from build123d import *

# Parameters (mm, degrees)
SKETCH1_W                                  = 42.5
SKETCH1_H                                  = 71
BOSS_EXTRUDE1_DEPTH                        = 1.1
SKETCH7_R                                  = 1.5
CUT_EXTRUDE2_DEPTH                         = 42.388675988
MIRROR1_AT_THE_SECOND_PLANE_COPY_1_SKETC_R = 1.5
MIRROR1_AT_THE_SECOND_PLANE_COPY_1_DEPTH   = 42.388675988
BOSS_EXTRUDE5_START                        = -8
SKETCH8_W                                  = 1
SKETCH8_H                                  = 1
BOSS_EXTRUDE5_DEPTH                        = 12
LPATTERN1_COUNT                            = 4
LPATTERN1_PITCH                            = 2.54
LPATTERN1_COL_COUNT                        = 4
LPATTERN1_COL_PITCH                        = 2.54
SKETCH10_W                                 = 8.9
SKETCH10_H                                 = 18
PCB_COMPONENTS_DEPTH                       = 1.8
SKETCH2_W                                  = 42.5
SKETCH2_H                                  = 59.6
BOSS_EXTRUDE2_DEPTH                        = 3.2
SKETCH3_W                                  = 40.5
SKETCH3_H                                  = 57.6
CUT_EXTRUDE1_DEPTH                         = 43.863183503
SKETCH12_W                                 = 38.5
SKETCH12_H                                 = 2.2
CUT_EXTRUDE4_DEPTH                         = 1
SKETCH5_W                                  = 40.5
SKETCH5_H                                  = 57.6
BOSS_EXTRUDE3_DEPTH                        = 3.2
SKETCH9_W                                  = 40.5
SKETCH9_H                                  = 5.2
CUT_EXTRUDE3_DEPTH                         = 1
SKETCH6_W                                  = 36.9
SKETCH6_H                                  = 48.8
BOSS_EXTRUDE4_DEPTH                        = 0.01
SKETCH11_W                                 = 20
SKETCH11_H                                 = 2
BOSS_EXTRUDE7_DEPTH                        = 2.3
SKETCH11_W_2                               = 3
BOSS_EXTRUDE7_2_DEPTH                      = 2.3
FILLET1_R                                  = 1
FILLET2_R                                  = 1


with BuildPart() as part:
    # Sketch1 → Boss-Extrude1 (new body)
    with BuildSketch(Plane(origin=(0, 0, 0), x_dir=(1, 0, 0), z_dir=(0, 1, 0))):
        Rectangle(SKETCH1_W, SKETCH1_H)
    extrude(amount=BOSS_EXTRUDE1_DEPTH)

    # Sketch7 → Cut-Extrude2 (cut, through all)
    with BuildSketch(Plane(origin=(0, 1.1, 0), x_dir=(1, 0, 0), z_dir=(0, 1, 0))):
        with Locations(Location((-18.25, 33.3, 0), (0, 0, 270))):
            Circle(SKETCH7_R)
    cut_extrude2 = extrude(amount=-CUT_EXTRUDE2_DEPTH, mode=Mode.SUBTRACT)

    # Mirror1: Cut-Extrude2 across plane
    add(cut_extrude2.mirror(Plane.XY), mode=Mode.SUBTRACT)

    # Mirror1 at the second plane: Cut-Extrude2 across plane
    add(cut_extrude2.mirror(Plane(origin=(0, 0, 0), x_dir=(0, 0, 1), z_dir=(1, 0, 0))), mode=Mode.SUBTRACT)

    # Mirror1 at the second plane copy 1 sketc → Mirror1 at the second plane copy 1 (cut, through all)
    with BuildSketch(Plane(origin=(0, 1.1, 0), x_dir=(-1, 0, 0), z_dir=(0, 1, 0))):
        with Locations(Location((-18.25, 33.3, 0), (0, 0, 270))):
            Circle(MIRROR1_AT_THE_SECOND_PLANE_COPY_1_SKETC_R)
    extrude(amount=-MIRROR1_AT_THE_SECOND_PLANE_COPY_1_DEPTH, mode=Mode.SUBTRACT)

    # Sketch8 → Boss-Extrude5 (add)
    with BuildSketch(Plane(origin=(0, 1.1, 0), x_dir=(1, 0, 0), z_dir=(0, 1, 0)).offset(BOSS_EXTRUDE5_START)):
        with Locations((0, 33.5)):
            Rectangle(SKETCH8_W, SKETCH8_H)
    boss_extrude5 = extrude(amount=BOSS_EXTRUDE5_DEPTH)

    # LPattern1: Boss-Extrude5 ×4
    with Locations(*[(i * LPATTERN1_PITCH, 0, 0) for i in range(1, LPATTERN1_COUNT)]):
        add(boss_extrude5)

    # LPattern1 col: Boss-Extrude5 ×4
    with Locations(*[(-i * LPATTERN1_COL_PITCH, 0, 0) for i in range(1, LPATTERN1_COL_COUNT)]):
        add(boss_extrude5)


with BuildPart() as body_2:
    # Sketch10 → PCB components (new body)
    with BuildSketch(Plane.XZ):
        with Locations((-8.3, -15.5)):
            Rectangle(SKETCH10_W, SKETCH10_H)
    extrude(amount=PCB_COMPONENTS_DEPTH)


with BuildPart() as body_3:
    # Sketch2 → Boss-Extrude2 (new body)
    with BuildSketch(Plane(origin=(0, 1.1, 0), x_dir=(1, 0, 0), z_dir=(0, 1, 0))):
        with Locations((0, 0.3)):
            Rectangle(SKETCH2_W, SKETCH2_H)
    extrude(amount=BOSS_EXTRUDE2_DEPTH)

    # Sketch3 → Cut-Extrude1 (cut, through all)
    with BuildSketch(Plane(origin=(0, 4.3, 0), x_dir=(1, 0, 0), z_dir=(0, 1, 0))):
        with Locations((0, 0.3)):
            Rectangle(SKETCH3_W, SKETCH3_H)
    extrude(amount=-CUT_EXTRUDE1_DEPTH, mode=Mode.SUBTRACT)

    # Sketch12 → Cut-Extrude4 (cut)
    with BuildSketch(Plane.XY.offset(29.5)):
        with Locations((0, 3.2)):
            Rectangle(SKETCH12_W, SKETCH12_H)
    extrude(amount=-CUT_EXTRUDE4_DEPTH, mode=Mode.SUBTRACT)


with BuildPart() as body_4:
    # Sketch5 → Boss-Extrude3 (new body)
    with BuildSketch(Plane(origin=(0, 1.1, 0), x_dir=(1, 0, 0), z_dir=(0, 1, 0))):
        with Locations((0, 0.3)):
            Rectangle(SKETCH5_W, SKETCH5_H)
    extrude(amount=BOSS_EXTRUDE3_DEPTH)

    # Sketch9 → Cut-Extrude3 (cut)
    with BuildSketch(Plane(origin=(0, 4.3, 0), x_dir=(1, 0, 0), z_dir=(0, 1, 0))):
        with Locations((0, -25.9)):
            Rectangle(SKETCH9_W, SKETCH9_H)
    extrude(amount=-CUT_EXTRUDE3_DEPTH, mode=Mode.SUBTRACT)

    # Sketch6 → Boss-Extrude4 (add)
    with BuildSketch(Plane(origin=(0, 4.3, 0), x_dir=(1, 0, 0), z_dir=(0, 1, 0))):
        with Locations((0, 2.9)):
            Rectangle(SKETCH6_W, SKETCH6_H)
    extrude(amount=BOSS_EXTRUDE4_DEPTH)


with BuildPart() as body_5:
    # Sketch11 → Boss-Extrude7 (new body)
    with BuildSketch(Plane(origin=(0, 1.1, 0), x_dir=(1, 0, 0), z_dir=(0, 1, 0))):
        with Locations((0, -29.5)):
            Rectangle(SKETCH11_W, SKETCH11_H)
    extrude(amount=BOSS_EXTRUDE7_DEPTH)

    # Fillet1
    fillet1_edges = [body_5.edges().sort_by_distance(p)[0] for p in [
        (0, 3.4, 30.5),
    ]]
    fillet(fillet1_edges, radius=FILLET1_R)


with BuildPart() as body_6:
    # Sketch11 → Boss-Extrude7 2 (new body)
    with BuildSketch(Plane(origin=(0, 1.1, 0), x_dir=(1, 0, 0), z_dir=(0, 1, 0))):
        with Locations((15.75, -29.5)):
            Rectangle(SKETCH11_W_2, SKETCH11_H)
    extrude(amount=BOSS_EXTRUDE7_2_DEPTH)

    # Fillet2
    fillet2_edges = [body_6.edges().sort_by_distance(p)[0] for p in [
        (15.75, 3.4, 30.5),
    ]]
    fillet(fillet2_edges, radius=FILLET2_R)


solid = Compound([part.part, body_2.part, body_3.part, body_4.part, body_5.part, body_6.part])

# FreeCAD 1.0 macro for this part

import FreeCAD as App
import Part
import Sketcher


def edges_at(feature, points):
    """Names of the edges that pass closest to the given points."""
    edges = feature.Shape.Edges
    near = lambda p: min(range(len(edges)), key=lambda i: edges[i].distToShape(Part.Vertex(*p))[0])
    return sorted({f"Edge{near(p) + 1}" for p in points})

doc = App.newDocument("Part")
body = doc.addObject("PartDesign::Body", "Body")

# Sketch on XZ plane
sketch1 = body.newObject("Sketcher::SketchObject", "Sketch")
sketch1.AttachmentSupport = (doc.getObject("XZ_Plane"), [""])
sketch1.MapMode = "FlatFace"
sketch1.addGeometry([
    Part.LineSegment(App.Vector(-21, -36, 0), App.Vector(-21, 36, 0)),
    Part.LineSegment(App.Vector(-21, 36, 0), App.Vector(21, 36, 0)),
    Part.LineSegment(App.Vector(21, 36, 0), App.Vector(21, -36, 0)),
    Part.LineSegment(App.Vector(21, -36, 0), App.Vector(-21, -36, 0)),
], False)
sketch1.addConstraint([
    Sketcher.Constraint("Coincident", 0, 2, 1, 1),
    Sketcher.Constraint("Coincident", 1, 2, 2, 1),
    Sketcher.Constraint("Coincident", 2, 2, 3, 1),
    Sketcher.Constraint("Coincident", 3, 2, 0, 1),
    Sketcher.Constraint("Vertical", 0),
    Sketcher.Constraint("Horizontal", 1),
    Sketcher.Constraint("Vertical", 2),
    Sketcher.Constraint("Horizontal", 3),
    Sketcher.Constraint("Symmetric", 0, 2, 2, 2, -1, 1),
    Sketcher.Constraint("DistanceY", 0, 1, 0, 2, 71.0),
    Sketcher.Constraint("DistanceX", 1, 1, 1, 2, 42.5),
])
pad1 = body.newObject("PartDesign::Pad", "Pad")
pad1.Profile = sketch1
pad1.Length = 1.1
pad1.Reversed = True

# Sketch on XZ plane
sketch2 = body.newObject("Sketcher::SketchObject", "Sketch001")
sketch2.AttachmentSupport = (doc.getObject("XZ_Plane"), [""])
sketch2.MapMode = "FlatFace"
sketch2.AttachmentOffset = App.Placement(App.Vector(0, 0, -1.1), App.Rotation())
sketch2.addGeometry(Part.Circle(App.Vector(-18.2, -33.3, 0), App.Vector(0, 0, 1), 1.5), False)
sketch2.addConstraint([
    Sketcher.Constraint("Diameter", 0, 3.0),
    Sketcher.Constraint("DistanceY", 0, 3, -1, 1, 33.3),
    Sketcher.Constraint("DistanceX", 0, 3, -1, 1, 18.25),
])
pocket1 = body.newObject("PartDesign::Pocket", "Pocket")
pocket1.Profile = sketch2
pocket1.Type = "ThroughAll"
pocket1.Reversed = True
doc.recompute()

mirrored = body.newObject("PartDesign::Mirrored", "Mirrored")
mirrored.Originals = [pocket1]
mirrored.MirrorPlane = (doc.getObject("XY_Plane"), [""])
body.Tip = mirrored
doc.recompute()

mirrored2 = body.newObject("PartDesign::Mirrored", "Mirrored001")
mirrored2.Originals = [pocket1]
mirrored2.MirrorPlane = (doc.getObject("YZ_Plane"), [""])
body.Tip = mirrored2

# Sketch on XZ plane
sketch3 = body.newObject("Sketcher::SketchObject", "Sketch002")
sketch3.AttachmentSupport = (doc.getObject("XZ_Plane"), [""])
sketch3.MapMode = "FlatFace"
sketch3.AttachmentOffset = App.Placement(App.Vector(0, 0, -1.1), App.Rotation())
sketch3.addGeometry(Part.Circle(App.Vector(18.2, 33.3, 0), App.Vector(0, 0, 1), 1.5), False)
sketch3.addConstraint([
    Sketcher.Constraint("Diameter", 0, 3.0),
    Sketcher.Constraint("DistanceY", -1, 1, 0, 3, 33.3),
    Sketcher.Constraint("DistanceX", -1, 1, 0, 3, 18.25),
])
pocket2 = body.newObject("PartDesign::Pocket", "Pocket001")
pocket2.Profile = sketch3
pocket2.Type = "ThroughAll"
pocket2.Reversed = True

# Sketch on XZ plane
sketch4 = body.newObject("Sketcher::SketchObject", "Sketch003")
sketch4.AttachmentSupport = (doc.getObject("XZ_Plane"), [""])
sketch4.MapMode = "FlatFace"
sketch4.AttachmentOffset = App.Placement(App.Vector(0, 0, 6.9), App.Rotation())
sketch4.addGeometry([
    Part.LineSegment(App.Vector(-0.5, -34, 0), App.Vector(-0.5, -33, 0)),
    Part.LineSegment(App.Vector(-0.5, -33, 0), App.Vector(0.5, -33, 0)),
    Part.LineSegment(App.Vector(0.5, -33, 0), App.Vector(0.5, -34, 0)),
    Part.LineSegment(App.Vector(0.5, -34, 0), App.Vector(-0.5, -34, 0)),
], False)
sketch4.addConstraint([
    Sketcher.Constraint("Coincident", 0, 2, 1, 1),
    Sketcher.Constraint("Coincident", 1, 2, 2, 1),
    Sketcher.Constraint("Coincident", 2, 2, 3, 1),
    Sketcher.Constraint("Coincident", 3, 2, 0, 1),
    Sketcher.Constraint("Vertical", 0),
    Sketcher.Constraint("Horizontal", 1),
    Sketcher.Constraint("Vertical", 2),
    Sketcher.Constraint("Horizontal", 3),
    Sketcher.Constraint("Equal", 3, 0),
    Sketcher.Constraint("DistanceX", 1, 1, 1, 2, 1.0),
    Sketcher.Constraint("DistanceY", 0, 2, -1, 1, 33.0),
    Sketcher.Constraint("DistanceX", 0, 2, -1, 1, 0.5),
])
pad2 = body.newObject("PartDesign::Pad", "Pad001")
pad2.Profile = sketch4
pad2.Length = 12
pad2.Reversed = True
doc.recompute()

linearpattern = body.newObject("PartDesign::LinearPattern", "LinearPattern")
linearpattern.Originals = [pad2]
linearpattern.Direction = (doc.getObject("X_Axis"), [""])
linearpattern.Mode = "offset"
linearpattern.Offset = 2.54
linearpattern.Occurrences = 4
body.Tip = linearpattern
doc.recompute()

linearpattern2 = body.newObject("PartDesign::LinearPattern", "LinearPattern001")
linearpattern2.Originals = [pad2]
linearpattern2.Direction = (doc.getObject("X_Axis"), [""])
linearpattern2.Mode = "offset"
linearpattern2.Offset = 2.54
linearpattern2.Occurrences = 4
linearpattern2.Reversed = True
body.Tip = linearpattern2
body2 = doc.addObject("PartDesign::Body", "Body001")

# Sketch on XZ plane
sketch5 = body2.newObject("Sketcher::SketchObject", "Sketch004")
sketch5.AttachmentSupport = (doc.getObject("XZ_Plane001"), [""])
sketch5.MapMode = "FlatFace"
sketch5.addGeometry([
    Part.LineSegment(App.Vector(-13, -6, 0), App.Vector(-13, -24, 0)),
    Part.LineSegment(App.Vector(-13, -24, 0), App.Vector(-4, -24, 0)),
    Part.LineSegment(App.Vector(-4, -24, 0), App.Vector(-4, -6, 0)),
    Part.LineSegment(App.Vector(-4, -6, 0), App.Vector(-13, -6, 0)),
], False)
sketch5.addConstraint([
    Sketcher.Constraint("Coincident", 0, 2, 1, 1),
    Sketcher.Constraint("Coincident", 1, 2, 2, 1),
    Sketcher.Constraint("Coincident", 2, 2, 3, 1),
    Sketcher.Constraint("Coincident", 3, 2, 0, 1),
    Sketcher.Constraint("Vertical", 0),
    Sketcher.Constraint("Horizontal", 1),
    Sketcher.Constraint("Vertical", 2),
    Sketcher.Constraint("Horizontal", 3),
    Sketcher.Constraint("DistanceY", 0, 2, 0, 1, 18.0),
    Sketcher.Constraint("DistanceX", 1, 1, 1, 2, 8.9),
    Sketcher.Constraint("DistanceY", 0, 2, -1, 1, 24.5),
    Sketcher.Constraint("DistanceX", 0, 2, -1, 1, 12.75),
])
pad3 = body2.newObject("PartDesign::Pad", "Pad002")
pad3.Profile = sketch5
pad3.Length = 1.8
body3 = doc.addObject("PartDesign::Body", "Body002")

# Sketch on XZ plane
sketch6 = body3.newObject("Sketcher::SketchObject", "Sketch005")
sketch6.AttachmentSupport = (doc.getObject("XZ_Plane002"), [""])
sketch6.MapMode = "FlatFace"
sketch6.AttachmentOffset = App.Placement(App.Vector(0, 0, -1.1), App.Rotation())
sketch6.addGeometry([
    Part.LineSegment(App.Vector(-21, -30, 0), App.Vector(-21, 30, 0)),
    Part.LineSegment(App.Vector(-21, 30, 0), App.Vector(21, 30, 0)),
    Part.LineSegment(App.Vector(21, 30, 0), App.Vector(21, -30, 0)),
    Part.LineSegment(App.Vector(21, -30, 0), App.Vector(-21, -30, 0)),
], False)
sketch6.addConstraint([
    Sketcher.Constraint("Coincident", 0, 2, 1, 1),
    Sketcher.Constraint("Coincident", 1, 2, 2, 1),
    Sketcher.Constraint("Coincident", 2, 2, 3, 1),
    Sketcher.Constraint("Coincident", 3, 2, 0, 1),
    Sketcher.Constraint("Vertical", 0),
    Sketcher.Constraint("Horizontal", 1),
    Sketcher.Constraint("Vertical", 2),
    Sketcher.Constraint("Horizontal", 3),
    Sketcher.Constraint("DistanceX", 1, 1, 1, 2, 42.5),
    Sketcher.Constraint("DistanceY", 0, 1, 0, 2, 59.6),
    Sketcher.Constraint("DistanceY", -1, 1, 0, 2, 29.5),
    Sketcher.Constraint("DistanceX", 0, 2, -1, 1, 21.25),
])
pad4 = body3.newObject("PartDesign::Pad", "Pad003")
pad4.Profile = sketch6
pad4.Length = 3.2
pad4.Reversed = True

# Sketch on XZ plane
sketch7 = body3.newObject("Sketcher::SketchObject", "Sketch006")
sketch7.AttachmentSupport = (doc.getObject("XZ_Plane002"), [""])
sketch7.MapMode = "FlatFace"
sketch7.AttachmentOffset = App.Placement(App.Vector(0, 0, -4.3), App.Rotation())
sketch7.addGeometry([
    Part.LineSegment(App.Vector(-20, -29, 0), App.Vector(-20, 28, 0)),
    Part.LineSegment(App.Vector(-20, 28, 0), App.Vector(20, 28, 0)),
    Part.LineSegment(App.Vector(20, 28, 0), App.Vector(20, -29, 0)),
    Part.LineSegment(App.Vector(20, -29, 0), App.Vector(-20, -29, 0)),
], False)
sketch7.addConstraint([
    Sketcher.Constraint("Coincident", 0, 2, 1, 1),
    Sketcher.Constraint("Coincident", 1, 2, 2, 1),
    Sketcher.Constraint("Coincident", 2, 2, 3, 1),
    Sketcher.Constraint("Coincident", 3, 2, 0, 1),
    Sketcher.Constraint("Vertical", 0),
    Sketcher.Constraint("Horizontal", 1),
    Sketcher.Constraint("Vertical", 2),
    Sketcher.Constraint("Horizontal", 3),
    Sketcher.Constraint("DistanceX", 1, 1, 1, 2, 40.5),
    Sketcher.Constraint("DistanceY", 0, 1, 0, 2, 57.6),
    Sketcher.Constraint("DistanceY", -1, 1, 0, 2, 28.5),
    Sketcher.Constraint("DistanceX", 0, 2, -1, 1, 20.25),
])
pocket3 = body3.newObject("PartDesign::Pocket", "Pocket002")
pocket3.Profile = sketch7
pocket3.Type = "ThroughAll"
pocket3.Reversed = True

# Sketch on XY plane
sketch8 = body3.newObject("Sketcher::SketchObject", "Sketch007")
sketch8.AttachmentSupport = (doc.getObject("XY_Plane002"), [""])
sketch8.MapMode = "FlatFace"
sketch8.AttachmentOffset = App.Placement(App.Vector(0, 0, 29.5), App.Rotation())
sketch8.addGeometry([
    Part.LineSegment(App.Vector(-19.2, 4.3, 0), App.Vector(-19.2, 2.1, 0)),
    Part.LineSegment(App.Vector(-19.2, 2.1, 0), App.Vector(19.2, 2.1, 0)),
    Part.LineSegment(App.Vector(19.2, 2.1, 0), App.Vector(19.2, 4.3, 0)),
    Part.LineSegment(App.Vector(19.2, 4.3, 0), App.Vector(-19.2, 4.3, 0)),
], False)
sketch8.addConstraint([
    Sketcher.Constraint("Coincident", 0, 2, 1, 1),
    Sketcher.Constraint("Coincident", 1, 2, 2, 1),
    Sketcher.Constraint("Coincident", 2, 2, 3, 1),
    Sketcher.Constraint("Coincident", 3, 2, 0, 1),
    Sketcher.Constraint("Vertical", 0),
    Sketcher.Constraint("Horizontal", 1),
    Sketcher.Constraint("Vertical", 2),
    Sketcher.Constraint("Horizontal", 3),
    Sketcher.Constraint("DistanceX", 1, 1, 1, 2, 38.5),
    Sketcher.Constraint("DistanceY", 0, 2, 0, 1, 2.2),
    Sketcher.Constraint("DistanceY", -1, 1, 0, 2, 2.1),
    Sketcher.Constraint("DistanceX", 0, 2, -1, 1, 19.25),
])
pocket4 = body3.newObject("PartDesign::Pocket", "Pocket003")
pocket4.Profile = sketch8
pocket4.Length = 1
body4 = doc.addObject("PartDesign::Body", "Body003")

# Sketch on XZ plane
sketch9 = body4.newObject("Sketcher::SketchObject", "Sketch008")
sketch9.AttachmentSupport = (doc.getObject("XZ_Plane003"), [""])
sketch9.MapMode = "FlatFace"
sketch9.AttachmentOffset = App.Placement(App.Vector(0, 0, -1.1), App.Rotation())
sketch9.addGeometry([
    Part.LineSegment(App.Vector(-20, -29, 0), App.Vector(-20, 28, 0)),
    Part.LineSegment(App.Vector(-20, 28, 0), App.Vector(20, 28, 0)),
    Part.LineSegment(App.Vector(20, 28, 0), App.Vector(20, -29, 0)),
    Part.LineSegment(App.Vector(20, -29, 0), App.Vector(-20, -29, 0)),
], False)
sketch9.addConstraint([
    Sketcher.Constraint("Coincident", 0, 2, 1, 1),
    Sketcher.Constraint("Coincident", 1, 2, 2, 1),
    Sketcher.Constraint("Coincident", 2, 2, 3, 1),
    Sketcher.Constraint("Coincident", 3, 2, 0, 1),
    Sketcher.Constraint("Vertical", 0),
    Sketcher.Constraint("Horizontal", 1),
    Sketcher.Constraint("Vertical", 2),
    Sketcher.Constraint("Horizontal", 3),
    Sketcher.Constraint("DistanceX", 1, 1, 1, 2, 40.5),
    Sketcher.Constraint("DistanceY", 0, 1, 0, 2, 57.6),
    Sketcher.Constraint("DistanceY", -1, 1, 0, 2, 28.5),
    Sketcher.Constraint("DistanceX", 0, 2, -1, 1, 20.25),
])
pad5 = body4.newObject("PartDesign::Pad", "Pad004")
pad5.Profile = sketch9
pad5.Length = 3.2
pad5.Reversed = True

# Sketch on XZ plane
sketch10 = body4.newObject("Sketcher::SketchObject", "Sketch009")
sketch10.AttachmentSupport = (doc.getObject("XZ_Plane003"), [""])
sketch10.MapMode = "FlatFace"
sketch10.AttachmentOffset = App.Placement(App.Vector(0, 0, -4.3), App.Rotation())
sketch10.addGeometry([
    Part.LineSegment(App.Vector(-20, 23, 0), App.Vector(-20, 28, 0)),
    Part.LineSegment(App.Vector(-20, 28, 0), App.Vector(20, 28, 0)),
    Part.LineSegment(App.Vector(20, 28, 0), App.Vector(20, 23, 0)),
    Part.LineSegment(App.Vector(20, 23, 0), App.Vector(-20, 23, 0)),
], False)
sketch10.addConstraint([
    Sketcher.Constraint("Coincident", 0, 2, 1, 1),
    Sketcher.Constraint("Coincident", 1, 2, 2, 1),
    Sketcher.Constraint("Coincident", 2, 2, 3, 1),
    Sketcher.Constraint("Coincident", 3, 2, 0, 1),
    Sketcher.Constraint("Vertical", 0),
    Sketcher.Constraint("Horizontal", 1),
    Sketcher.Constraint("Vertical", 2),
    Sketcher.Constraint("Horizontal", 3),
    Sketcher.Constraint("DistanceX", 1, 1, 1, 2, 40.5),
    Sketcher.Constraint("DistanceY", 0, 1, 0, 2, 5.2),
    Sketcher.Constraint("DistanceY", -1, 1, 0, 2, 28.5),
    Sketcher.Constraint("DistanceX", 0, 2, -1, 1, 20.25),
])
pocket5 = body4.newObject("PartDesign::Pocket", "Pocket004")
pocket5.Profile = sketch10
pocket5.Length = 1
pocket5.Reversed = True

# Sketch on XZ plane
sketch11 = body4.newObject("Sketcher::SketchObject", "Sketch010")
sketch11.AttachmentSupport = (doc.getObject("XZ_Plane003"), [""])
sketch11.MapMode = "FlatFace"
sketch11.AttachmentOffset = App.Placement(App.Vector(0, 0, -4.3), App.Rotation())
sketch11.addGeometry([
    Part.LineSegment(App.Vector(-18, -27, 0), App.Vector(-18, 22, 0)),
    Part.LineSegment(App.Vector(-18, 22, 0), App.Vector(18, 22, 0)),
    Part.LineSegment(App.Vector(18, 22, 0), App.Vector(18, -27, 0)),
    Part.LineSegment(App.Vector(18, -27, 0), App.Vector(-18, -27, 0)),
], False)
sketch11.addConstraint([
    Sketcher.Constraint("Coincident", 0, 2, 1, 1),
    Sketcher.Constraint("Coincident", 1, 2, 2, 1),
    Sketcher.Constraint("Coincident", 2, 2, 3, 1),
    Sketcher.Constraint("Coincident", 3, 2, 0, 1),
    Sketcher.Constraint("Vertical", 0),
    Sketcher.Constraint("Horizontal", 1),
    Sketcher.Constraint("Vertical", 2),
    Sketcher.Constraint("Horizontal", 3),
    Sketcher.Constraint("DistanceX", 1, 1, 1, 2, 36.9),
    Sketcher.Constraint("DistanceY", 0, 1, 0, 2, 48.8),
    Sketcher.Constraint("DistanceY", -1, 1, 0, 2, 21.5),
    Sketcher.Constraint("DistanceX", 0, 2, -1, 1, 18.45),
])
pad6 = body4.newObject("PartDesign::Pad", "Pad005")
pad6.Profile = sketch11
pad6.Length = 0.01
pad6.Reversed = True
body5 = doc.addObject("PartDesign::Body", "Body004")

# Sketch on XZ plane
sketch12 = body5.newObject("Sketcher::SketchObject", "Sketch011")
sketch12.AttachmentSupport = (doc.getObject("XZ_Plane004"), [""])
sketch12.MapMode = "FlatFace"
sketch12.AttachmentOffset = App.Placement(App.Vector(0, 0, -1.1), App.Rotation())
sketch12.addGeometry([
    Part.LineSegment(App.Vector(-10, 28.5, 0), App.Vector(-10, 30.5, 0)),
    Part.LineSegment(App.Vector(-10, 30.5, 0), App.Vector(10, 30.5, 0)),
    Part.LineSegment(App.Vector(10, 30.5, 0), App.Vector(10, 28.5, 0)),
    Part.LineSegment(App.Vector(10, 28.5, 0), App.Vector(-10, 28.5, 0)),
], False)
sketch12.addConstraint([
    Sketcher.Constraint("Coincident", 0, 2, 1, 1),
    Sketcher.Constraint("Coincident", 1, 2, 2, 1),
    Sketcher.Constraint("Coincident", 2, 2, 3, 1),
    Sketcher.Constraint("Coincident", 3, 2, 0, 1),
    Sketcher.Constraint("Vertical", 0),
    Sketcher.Constraint("Horizontal", 1),
    Sketcher.Constraint("Vertical", 2),
    Sketcher.Constraint("Horizontal", 3),
    Sketcher.Constraint("DistanceX", 1, 1, 1, 2, 20.0),
    Sketcher.Constraint("DistanceY", 0, 1, 0, 2, 2.0),
    Sketcher.Constraint("DistanceX", 0, 2, -1, 1, 10.0),
    Sketcher.Constraint("DistanceY", -1, 1, 0, 2, 30.5),
])
pad7 = body5.newObject("PartDesign::Pad", "Pad006")
pad7.Profile = sketch12
pad7.Length = 2.3
pad7.Reversed = True
doc.recompute()

fillet = body5.newObject("PartDesign::Fillet", "Fillet")
fillet.Base = (pad7, edges_at(pad7, [(0, 3.4, 30.5)]))
fillet.Radius = 1
body6 = doc.addObject("PartDesign::Body", "Body005")

# Sketch on XZ plane
sketch13 = body6.newObject("Sketcher::SketchObject", "Sketch012")
sketch13.AttachmentSupport = (doc.getObject("XZ_Plane005"), [""])
sketch13.MapMode = "FlatFace"
sketch13.AttachmentOffset = App.Placement(App.Vector(0, 0, -1.1), App.Rotation())
sketch13.addGeometry([
    Part.LineSegment(App.Vector(14.2, 28.5, 0), App.Vector(14.2, 30.5, 0)),
    Part.LineSegment(App.Vector(14.2, 30.5, 0), App.Vector(17.2, 30.5, 0)),
    Part.LineSegment(App.Vector(17.2, 30.5, 0), App.Vector(17.2, 28.5, 0)),
    Part.LineSegment(App.Vector(17.2, 28.5, 0), App.Vector(14.2, 28.5, 0)),
], False)
sketch13.addConstraint([
    Sketcher.Constraint("Coincident", 0, 2, 1, 1),
    Sketcher.Constraint("Coincident", 1, 2, 2, 1),
    Sketcher.Constraint("Coincident", 2, 2, 3, 1),
    Sketcher.Constraint("Coincident", 3, 2, 0, 1),
    Sketcher.Constraint("Vertical", 0),
    Sketcher.Constraint("Horizontal", 1),
    Sketcher.Constraint("Vertical", 2),
    Sketcher.Constraint("Horizontal", 3),
    Sketcher.Constraint("DistanceX", 1, 1, 1, 2, 3.0),
    Sketcher.Constraint("DistanceY", 0, 1, 0, 2, 2.0),
    Sketcher.Constraint("DistanceY", -1, 1, 0, 2, 30.5),
    Sketcher.Constraint("DistanceX", -1, 1, 0, 2, 14.25),
])
pad8 = body6.newObject("PartDesign::Pad", "Pad007")
pad8.Profile = sketch13
pad8.Length = 2.3
pad8.Reversed = True
doc.recompute()

fillet2 = body6.newObject("PartDesign::Fillet", "Fillet001")
fillet2.Base = (pad8, edges_at(pad8, [(15.75, 3.4, 30.5)]))
fillet2.Radius = 1

doc.recompute()
